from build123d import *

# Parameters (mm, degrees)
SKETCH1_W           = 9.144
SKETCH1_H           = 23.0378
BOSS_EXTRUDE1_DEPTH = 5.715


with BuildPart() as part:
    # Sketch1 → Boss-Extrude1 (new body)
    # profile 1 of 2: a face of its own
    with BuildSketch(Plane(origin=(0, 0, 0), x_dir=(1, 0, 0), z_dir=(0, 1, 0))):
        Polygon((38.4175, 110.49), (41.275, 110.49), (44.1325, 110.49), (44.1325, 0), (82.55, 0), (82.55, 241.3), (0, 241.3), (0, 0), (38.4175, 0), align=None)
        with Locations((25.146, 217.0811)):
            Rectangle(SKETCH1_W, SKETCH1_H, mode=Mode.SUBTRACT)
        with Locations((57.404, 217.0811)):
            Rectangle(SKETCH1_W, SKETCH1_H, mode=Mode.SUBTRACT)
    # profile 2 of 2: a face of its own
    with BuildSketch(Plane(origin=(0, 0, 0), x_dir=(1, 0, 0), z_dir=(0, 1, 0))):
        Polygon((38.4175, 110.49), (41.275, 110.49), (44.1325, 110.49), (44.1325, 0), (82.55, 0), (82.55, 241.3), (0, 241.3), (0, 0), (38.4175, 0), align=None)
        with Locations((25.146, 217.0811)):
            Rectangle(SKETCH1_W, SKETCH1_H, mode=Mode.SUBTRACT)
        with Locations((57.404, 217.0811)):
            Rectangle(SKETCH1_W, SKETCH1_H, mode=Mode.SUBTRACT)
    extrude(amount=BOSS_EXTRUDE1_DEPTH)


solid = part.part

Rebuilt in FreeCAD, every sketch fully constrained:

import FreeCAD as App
import Part
import Sketcher

V = App.Vector
Q = App.Units.Quantity


def add_polygon(sketch, points):
    """Adds a closed chain of lines whose ends are joined by coincident constraints."""
    first, n = sketch.GeometryCount, len(points)
    for a, b in zip(points, points[1:] + points[:1]):
        sketch.addGeometry(Part.LineSegment(App.Vector(*a, 0), App.Vector(*b, 0)), False)
    for i in range(n):
        sketch.addConstraint(Sketcher.Constraint("Coincident", first + i, 2, first + (i + 1) % n, 1))

doc = App.newDocument("Part")
body = doc.addObject("PartDesign::Body", "Body")

sketch1 = doc.addObject("Sketcher::SketchObject", "Sketch")
body.addObject(sketch1)
sketch1.AttachmentSupport = (doc.XZ_Plane, [""])
sketch1.MapMode = "FlatFace"
add_polygon(sketch1, [(38, -110), (44, -110), (44, 0), (83, 0), (83, -241), (0, -241), (0, 0), (38, 0)])
add_polygon(sketch1, [(30, -206), (21, -206), (21, -229), (30, -229)])
add_polygon(sketch1, [(62, -206), (53, -206), (53, -229), (62, -229)])
sketch1.addConstraint(Sketcher.Constraint("Horizontal", 0))
sketch1.addConstraint(Sketcher.Constraint("Vertical", 1))
sketch1.addConstraint(Sketcher.Constraint("Horizontal", 2))
sketch1.addConstraint(Sketcher.Constraint("Vertical", 3))
sketch1.addConstraint(Sketcher.Constraint("Horizontal", 4))
sketch1.addConstraint(Sketcher.Constraint("Vertical", 5))
sketch1.addConstraint(Sketcher.Constraint("Horizontal", 6))
sketch1.addConstraint(Sketcher.Constraint("Vertical", 7))
sketch1.addConstraint(Sketcher.Constraint("Horizontal", 8))
sketch1.addConstraint(Sketcher.Constraint("Vertical", 9))
sketch1.addConstraint(Sketcher.Constraint("Horizontal", 10))
sketch1.addConstraint(Sketcher.Constraint("Vertical", 11))
sketch1.addConstraint(Sketcher.Constraint("Horizontal", 12))
sketch1.addConstraint(Sketcher.Constraint("Vertical", 13))
sketch1.addConstraint(Sketcher.Constraint("Horizontal", 14))
sketch1.addConstraint(Sketcher.Constraint("Vertical", 15))
sketch1.addConstraint(Sketcher.Constraint("Coincident", 5, 2, -1, 1))
sketch1.addConstraint(Sketcher.Constraint("PointOnObject", 1, 2, -1))
sketch1.addConstraint(Sketcher.Constraint("Horizontal", 11, 2, 12, 2))
sketch1.addConstraint(Sketcher.Constraint("Horizontal", 10, 2, 13, 2))
sketch1.addConstraint(Sketcher.Constraint("Equal", 2, 6))
sketch1.addConstraint(Sketcher.Constraint("Equal", 10, 12))
sketch1.addConstraint(Sketcher.Constraint("DistanceY", 3, 2, 3, 1, Q("9.5 in")))
sketch1.addConstraint(Sketcher.Constraint("DistanceY", 9, 2, -1, 1, Q("9 in")))
sketch1.addConstraint(Sketcher.Constraint("DistanceX", 4, 2, 4, 1, Q("3.25 in")))
sketch1.addConstraint(Sketcher.Constraint("DistanceX", 8, 2, 8, 1, Q("0.36 in")))
sketch1.addConstraint(Sketcher.Constraint("DistanceY", 1, 1, 1, 2, Q("4.35 in")))
sketch1.addConstraint(Sketcher.Constraint("DistanceX", 0, 1, 0, 2, Q("0.225 in")))
sketch1.addConstraint(Sketcher.Constraint("DistanceY", 9, 2, 9, 1, Q("0.907 in")))
sketch1.addConstraint(Sketcher.Constraint("DistanceX", -1, 1, 8, 2, Q("0.81 in")))
sketch1.addConstraint(Sketcher.Constraint("DistanceX", -1, 1, 12, 2, Q("2.08 in")))
pad1 = doc.addObject("PartDesign::Pad", "Pad")
body.addObject(pad1)
pad1.Profile = sketch1
pad1.Length = Q("0.225 in")
pad1.Reversed = True

doc.recompute()
